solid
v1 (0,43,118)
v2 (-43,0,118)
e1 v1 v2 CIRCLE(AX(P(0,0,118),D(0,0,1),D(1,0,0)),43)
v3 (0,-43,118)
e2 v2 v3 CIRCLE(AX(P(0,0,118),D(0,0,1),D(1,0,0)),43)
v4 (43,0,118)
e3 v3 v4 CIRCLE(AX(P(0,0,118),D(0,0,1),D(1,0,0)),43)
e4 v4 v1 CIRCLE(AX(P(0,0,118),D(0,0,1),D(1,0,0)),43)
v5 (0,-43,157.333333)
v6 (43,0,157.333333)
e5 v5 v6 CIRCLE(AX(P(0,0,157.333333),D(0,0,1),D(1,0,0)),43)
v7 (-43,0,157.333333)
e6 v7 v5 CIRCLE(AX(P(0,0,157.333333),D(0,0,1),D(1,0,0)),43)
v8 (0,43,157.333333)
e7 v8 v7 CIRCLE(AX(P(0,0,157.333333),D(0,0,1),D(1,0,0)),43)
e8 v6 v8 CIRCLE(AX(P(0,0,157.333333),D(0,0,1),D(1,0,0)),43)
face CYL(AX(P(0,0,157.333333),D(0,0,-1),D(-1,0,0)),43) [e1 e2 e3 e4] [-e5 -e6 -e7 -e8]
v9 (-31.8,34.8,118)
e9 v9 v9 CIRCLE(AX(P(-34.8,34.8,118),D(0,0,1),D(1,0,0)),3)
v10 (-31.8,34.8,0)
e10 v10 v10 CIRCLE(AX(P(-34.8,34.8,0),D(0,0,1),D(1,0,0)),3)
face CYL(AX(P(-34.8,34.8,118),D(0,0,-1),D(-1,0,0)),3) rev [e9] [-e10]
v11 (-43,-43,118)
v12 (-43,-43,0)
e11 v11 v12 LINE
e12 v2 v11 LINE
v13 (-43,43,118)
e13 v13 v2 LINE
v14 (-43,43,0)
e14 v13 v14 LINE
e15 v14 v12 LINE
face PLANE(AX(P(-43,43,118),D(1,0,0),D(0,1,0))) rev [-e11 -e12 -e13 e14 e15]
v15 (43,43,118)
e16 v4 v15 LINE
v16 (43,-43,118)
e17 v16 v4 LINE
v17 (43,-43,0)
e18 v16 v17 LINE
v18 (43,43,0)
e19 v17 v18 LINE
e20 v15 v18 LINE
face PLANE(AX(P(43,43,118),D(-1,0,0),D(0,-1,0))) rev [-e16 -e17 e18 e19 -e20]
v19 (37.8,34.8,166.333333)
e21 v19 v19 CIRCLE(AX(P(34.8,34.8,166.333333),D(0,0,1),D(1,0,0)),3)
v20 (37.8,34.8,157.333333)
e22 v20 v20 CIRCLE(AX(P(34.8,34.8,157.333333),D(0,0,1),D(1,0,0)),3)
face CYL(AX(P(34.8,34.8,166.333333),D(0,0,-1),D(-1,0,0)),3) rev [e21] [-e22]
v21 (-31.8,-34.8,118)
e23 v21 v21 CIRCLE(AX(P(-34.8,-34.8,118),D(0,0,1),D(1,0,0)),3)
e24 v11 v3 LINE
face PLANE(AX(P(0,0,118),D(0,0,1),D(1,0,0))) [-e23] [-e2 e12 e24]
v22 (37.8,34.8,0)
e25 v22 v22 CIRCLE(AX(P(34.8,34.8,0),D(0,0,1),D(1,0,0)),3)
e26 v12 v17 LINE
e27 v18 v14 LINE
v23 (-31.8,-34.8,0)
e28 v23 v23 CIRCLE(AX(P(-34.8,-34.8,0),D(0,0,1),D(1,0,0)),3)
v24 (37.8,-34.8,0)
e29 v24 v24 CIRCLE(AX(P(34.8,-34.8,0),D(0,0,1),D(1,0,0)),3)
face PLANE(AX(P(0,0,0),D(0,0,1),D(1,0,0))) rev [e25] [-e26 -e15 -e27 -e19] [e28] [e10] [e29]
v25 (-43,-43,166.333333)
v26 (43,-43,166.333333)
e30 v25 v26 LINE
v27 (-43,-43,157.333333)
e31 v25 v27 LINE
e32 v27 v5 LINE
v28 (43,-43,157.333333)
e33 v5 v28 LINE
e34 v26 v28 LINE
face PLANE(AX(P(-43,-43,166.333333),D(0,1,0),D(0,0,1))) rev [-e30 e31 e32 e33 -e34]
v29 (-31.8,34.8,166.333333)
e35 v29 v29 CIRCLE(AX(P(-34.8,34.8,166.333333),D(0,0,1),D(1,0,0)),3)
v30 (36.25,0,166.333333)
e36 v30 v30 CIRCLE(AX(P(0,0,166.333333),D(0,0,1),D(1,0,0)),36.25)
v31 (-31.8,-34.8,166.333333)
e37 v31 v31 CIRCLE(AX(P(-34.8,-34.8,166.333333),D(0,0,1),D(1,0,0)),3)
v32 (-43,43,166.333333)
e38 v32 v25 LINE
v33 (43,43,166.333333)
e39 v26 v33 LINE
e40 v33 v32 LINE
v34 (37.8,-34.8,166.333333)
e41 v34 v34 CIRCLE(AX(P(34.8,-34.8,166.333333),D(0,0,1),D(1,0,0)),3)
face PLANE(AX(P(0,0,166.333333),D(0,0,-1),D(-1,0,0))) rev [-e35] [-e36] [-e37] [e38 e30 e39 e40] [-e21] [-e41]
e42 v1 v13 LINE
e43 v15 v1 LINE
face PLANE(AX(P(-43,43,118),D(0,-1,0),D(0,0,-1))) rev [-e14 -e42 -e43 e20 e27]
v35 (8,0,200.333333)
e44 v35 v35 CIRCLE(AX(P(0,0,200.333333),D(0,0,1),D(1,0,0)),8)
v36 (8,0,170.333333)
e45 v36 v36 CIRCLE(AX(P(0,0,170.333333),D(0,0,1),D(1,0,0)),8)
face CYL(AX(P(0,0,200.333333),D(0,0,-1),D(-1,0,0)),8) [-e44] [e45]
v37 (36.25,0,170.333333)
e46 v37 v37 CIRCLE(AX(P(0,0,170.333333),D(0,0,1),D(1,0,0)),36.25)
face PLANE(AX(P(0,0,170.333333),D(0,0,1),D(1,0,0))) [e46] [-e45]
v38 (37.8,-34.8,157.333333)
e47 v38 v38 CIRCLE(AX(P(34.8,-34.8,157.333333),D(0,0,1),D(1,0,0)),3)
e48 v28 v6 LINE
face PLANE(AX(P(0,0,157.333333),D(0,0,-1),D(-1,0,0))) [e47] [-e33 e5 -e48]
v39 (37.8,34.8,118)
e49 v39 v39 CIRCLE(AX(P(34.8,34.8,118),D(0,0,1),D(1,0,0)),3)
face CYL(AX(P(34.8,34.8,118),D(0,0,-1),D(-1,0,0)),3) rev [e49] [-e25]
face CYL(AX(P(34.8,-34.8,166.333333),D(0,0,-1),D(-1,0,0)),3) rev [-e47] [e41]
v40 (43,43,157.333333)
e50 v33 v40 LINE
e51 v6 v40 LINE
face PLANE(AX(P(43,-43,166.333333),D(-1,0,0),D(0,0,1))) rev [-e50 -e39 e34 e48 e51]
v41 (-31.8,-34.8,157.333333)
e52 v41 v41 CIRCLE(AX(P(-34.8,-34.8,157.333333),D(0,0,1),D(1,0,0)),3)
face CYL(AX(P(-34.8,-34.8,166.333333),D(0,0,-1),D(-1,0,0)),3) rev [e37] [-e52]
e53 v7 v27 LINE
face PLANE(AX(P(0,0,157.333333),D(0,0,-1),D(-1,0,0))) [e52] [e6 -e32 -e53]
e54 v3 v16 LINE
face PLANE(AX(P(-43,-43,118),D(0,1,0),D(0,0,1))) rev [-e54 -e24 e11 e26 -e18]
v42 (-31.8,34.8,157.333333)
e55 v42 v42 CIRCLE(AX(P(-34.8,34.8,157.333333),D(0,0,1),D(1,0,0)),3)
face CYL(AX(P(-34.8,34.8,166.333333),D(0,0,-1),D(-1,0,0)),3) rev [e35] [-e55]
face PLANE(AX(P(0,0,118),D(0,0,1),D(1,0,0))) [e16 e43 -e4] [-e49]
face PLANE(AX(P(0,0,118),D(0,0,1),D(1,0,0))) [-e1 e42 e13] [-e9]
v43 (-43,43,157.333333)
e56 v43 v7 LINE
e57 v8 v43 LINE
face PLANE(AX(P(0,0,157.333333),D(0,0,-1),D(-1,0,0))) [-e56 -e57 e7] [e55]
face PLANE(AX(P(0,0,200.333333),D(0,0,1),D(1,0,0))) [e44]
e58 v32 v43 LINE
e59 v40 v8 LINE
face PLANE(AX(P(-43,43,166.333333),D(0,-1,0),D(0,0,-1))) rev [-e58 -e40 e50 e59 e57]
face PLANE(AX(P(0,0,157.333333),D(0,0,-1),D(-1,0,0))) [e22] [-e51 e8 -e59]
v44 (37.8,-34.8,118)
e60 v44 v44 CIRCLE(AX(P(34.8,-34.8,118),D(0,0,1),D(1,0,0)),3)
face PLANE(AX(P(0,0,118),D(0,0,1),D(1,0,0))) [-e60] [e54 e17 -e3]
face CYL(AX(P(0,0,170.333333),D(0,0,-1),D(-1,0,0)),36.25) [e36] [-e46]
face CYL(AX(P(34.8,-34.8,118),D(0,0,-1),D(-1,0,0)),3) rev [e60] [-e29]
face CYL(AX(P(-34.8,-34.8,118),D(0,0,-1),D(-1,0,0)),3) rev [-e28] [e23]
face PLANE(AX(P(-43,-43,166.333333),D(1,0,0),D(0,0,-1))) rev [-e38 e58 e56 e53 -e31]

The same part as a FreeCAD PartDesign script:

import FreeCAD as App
import Part
import Sketcher

V = App.Vector
Q = App.Units.Quantity


def add_polygon(sketch, points):
    """Adds a closed chain of lines whose ends are joined by coincident constraints."""
    first, n = sketch.GeometryCount, len(points)
    for a, b in zip(points, points[1:] + points[:1]):
        sketch.addGeometry(Part.LineSegment(App.Vector(*a, 0), App.Vector(*b, 0)), False)
    for i in range(n):
        sketch.addConstraint(Sketcher.Constraint("Coincident", first + i, 2, first + (i + 1) % n, 1))

doc = App.newDocument("Part")
body = doc.addObject("PartDesign::Body", "Body")

# Sketch on XY plane
sketch1 = body.newObject("Sketcher::SketchObject", "Sketch")
sketch1.AttachmentSupport = (doc.getObject("XY_Plane"), [""])
sketch1.MapMode = "FlatFace"
add_polygon(sketch1, [(-43, 43), (-43, -43), (43, -43), (43, 43)])  # lines 0-3
sketch1.addGeometry(Part.Circle(V(-34.8, -34.8, 0), V(0, 0, 1), 3), False)  # 4
sketch1.addGeometry(Part.Circle(V(34.8, -34.8, 0), V(0, 0, 1), 3), False)  # 5
sketch1.addGeometry(Part.Circle(V(-34.8, 34.8, 0), V(0, 0, 1), 3), False)  # 6
sketch1.addGeometry(Part.Circle(V(34.8, 34.8, 0), V(0, 0, 1), 3), False)  # 7
sketch1.addConstraint([
    Sketcher.Constraint("Vertical", 0),
    Sketcher.Constraint("Horizontal", 1),
    Sketcher.Constraint("Vertical", 2),
    Sketcher.Constraint("Horizontal", 3),
    Sketcher.Constraint("Equal", 4, 5),
    Sketcher.Constraint("Equal", 5, 6),
    Sketcher.Constraint("Equal", 6, 7),
    Sketcher.Constraint("Symmetric", 5, 3, 6, 3, -1, 1),
    Sketcher.Constraint("Symmetric", 4, 3, 7, 3, -1, 1),
    Sketcher.Constraint("Symmetric", 0, 2, 2, 2, -1, 1),
    Sketcher.Constraint("Symmetric", 4, 3, 5, 3, -2),
    Sketcher.Constraint("Equal", 3, 0),
    Sketcher.Constraint("Diameter", 4, Q("6 mm")),
    Sketcher.Constraint("DistanceX", 1, 1, 1, 2, Q("86 mm")),
    Sketcher.Constraint("DistanceX", 4, 3, -1, 1, Q("34.8 mm")),
    Sketcher.Constraint("DistanceY", 4, 3, -1, 1, Q("34.8 mm")),
])
pad1 = body.newObject("PartDesign::Pad", "Pad")
pad1.Profile = sketch1
pad1.Length = 118

# Sketch on XY plane
sketch2 = body.newObject("Sketcher::SketchObject", "Sketch001")
sketch2.AttachmentSupport = (doc.getObject("XY_Plane"), [""])
sketch2.MapMode = "FlatFace"
sketch2.AttachmentOffset = App.Placement(V(0, 0, 118), App.Rotation())
sketch2.addGeometry(Part.Circle(V(0, 0, 0), V(0, 0, 1), 43), False)
sketch2.addConstraint([
    Sketcher.Constraint("Coincident", 0, 3, -1, 1),
    Sketcher.Constraint("Diameter", 0, Q("86 mm")),
])
pad2 = body.newObject("PartDesign::Pad", "Pad001")
pad2.Profile = sketch2
pad2.Length = 39.333333

# Sketch on XY plane
sketch3 = body.newObject("Sketcher::SketchObject", "Sketch002")
sketch3.AttachmentSupport = (doc.getObject("XY_Plane"), [""])
sketch3.MapMode = "FlatFace"
sketch3.AttachmentOffset = App.Placement(V(0, 0, 157.333333), App.Rotation())
add_polygon(sketch3, [(-43, 43), (-43, -43), (43, -43), (43, 43)])  # lines 0-3
sketch3.addGeometry(Part.Circle(V(-34.8, -34.8, 0), V(0, 0, 1), 3), False)  # 4
sketch3.addGeometry(Part.Circle(V(34.8, -34.8, 0), V(0, 0, 1), 3), False)  # 5
sketch3.addGeometry(Part.Circle(V(-34.8, 34.8, 0), V(0, 0, 1), 3), False)  # 6
sketch3.addGeometry(Part.Circle(V(34.8, 34.8, 0), V(0, 0, 1), 3), False)  # 7
sketch3.addConstraint([
    Sketcher.Constraint("Vertical", 0),
    Sketcher.Constraint("Horizontal", 1),
    Sketcher.Constraint("Vertical", 2),
    Sketcher.Constraint("Horizontal", 3),
    Sketcher.Constraint("Equal", 4, 5),
    Sketcher.Constraint("Equal", 5, 6),
    Sketcher.Constraint("Equal", 6, 7),
    Sketcher.Constraint("Symmetric", 5, 3, 6, 3, -1, 1),
    Sketcher.Constraint("Symmetric", 4, 3, 7, 3, -1, 1),
    Sketcher.Constraint("Symmetric", 0, 2, 2, 2, -1, 1),
    Sketcher.Constraint("Symmetric", 4, 3, 5, 3, -2),
    Sketcher.Constraint("Equal", 3, 0),
    Sketcher.Constraint("Diameter", 4, Q("6 mm")),
    Sketcher.Constraint("DistanceX", 1, 1, 1, 2, Q("86 mm")),
    Sketcher.Constraint("DistanceX", 4, 3, -1, 1, Q("34.8 mm")),
    Sketcher.Constraint("DistanceY", 4, 3, -1, 1, Q("34.8 mm")),
])
pad3 = body.newObject("PartDesign::Pad", "Pad002")
pad3.Profile = sketch3
pad3.Length = 9

# Sketch on XY plane
sketch4 = body.newObject("Sketcher::SketchObject", "Sketch003")
sketch4.AttachmentSupport = (doc.getObject("XY_Plane"), [""])
sketch4.MapMode = "FlatFace"
sketch4.AttachmentOffset = App.Placement(V(0, 0, 166.333333), App.Rotation())
sketch4.addGeometry(Part.Circle(V(0, 0, 0), V(0, 0, 1), 36), False)
sketch4.addConstraint([
    Sketcher.Constraint("Coincident", 0, 3, -1, 1),
    Sketcher.Constraint("Diameter", 0, Q("72.5 mm")),
])
pad4 = body.newObject("PartDesign::Pad", "Pad003")
pad4.Profile = sketch4
pad4.Length = 4

# Sketch on XY plane
sketch5 = body.newObject("Sketcher::SketchObject", "Sketch004")
sketch5.AttachmentSupport = (doc.getObject("XY_Plane"), [""])
sketch5.MapMode = "FlatFace"
sketch5.AttachmentOffset = App.Placement(V(0, 0, 170.333333), App.Rotation())
sketch5.addGeometry(Part.Circle(V(0, 0, 0), V(0, 0, 1), 8), False)
sketch5.addConstraint([
    Sketcher.Constraint("Coincident", 0, 3, -1, 1),
    Sketcher.Constraint("Diameter", 0, Q("16 mm")),
])
pad5 = body.newObject("PartDesign::Pad", "Pad004")
pad5.Profile = sketch5
pad5.Length = 30

doc.recompute()
